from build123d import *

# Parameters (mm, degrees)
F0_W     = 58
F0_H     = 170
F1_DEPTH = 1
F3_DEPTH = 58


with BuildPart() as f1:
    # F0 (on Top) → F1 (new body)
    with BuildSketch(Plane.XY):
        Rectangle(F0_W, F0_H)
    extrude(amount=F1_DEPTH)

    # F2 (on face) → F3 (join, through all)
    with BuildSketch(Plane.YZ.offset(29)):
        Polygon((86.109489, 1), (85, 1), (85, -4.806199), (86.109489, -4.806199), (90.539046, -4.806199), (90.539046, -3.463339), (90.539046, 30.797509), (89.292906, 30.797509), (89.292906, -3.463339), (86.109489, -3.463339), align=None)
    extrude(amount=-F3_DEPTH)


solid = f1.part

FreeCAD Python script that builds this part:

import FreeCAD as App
import Part
import Sketcher

V = App.Vector


def add_polygon(sketch, points):
    """Adds a closed chain of lines whose ends are joined by coincident constraints."""
    first, n = sketch.GeometryCount, len(points)
    for a, b in zip(points, points[1:] + points[:1]):
        sketch.addGeometry(Part.LineSegment(App.Vector(*a, 0), App.Vector(*b, 0)), False)
    for i in range(n):
        sketch.addConstraint(Sketcher.Constraint("Coincident", first + i, 2, first + (i + 1) % n, 1))

doc = App.newDocument("Part")
params = doc.addObject("Spreadsheet::Sheet", "Params")
for row, (alias, value) in enumerate([
    ("sketch1_width", "58 mm"),
    ("sketch1_height", "170 mm"),
    ("pad1_length", "1 mm"),
    ("pad2_length", "58 mm"),
], start=1):
    params.set(f"A{row}", alias)
    params.set(f"B{row}", "=" + value)
    params.setAlias(f"B{row}", alias)

body = doc.addObject("PartDesign::Body", "Body")

# Sketch on XY plane
sketch1 = doc.addObject("Sketcher::SketchObject", "Sketch")
body.addObject(sketch1)
sketch1.AttachmentSupport = (doc.XY_Plane, [""])
sketch1.MapMode = "FlatFace"
add_polygon(sketch1, [(-29, 85), (-29, -85), (29, -85), (29, 85)])  # lines 0-3
sketch1.addConstraint(Sketcher.Constraint("Vertical", 0))
sketch1.addConstraint(Sketcher.Constraint("Horizontal", 1))
sketch1.addConstraint(Sketcher.Constraint("Vertical", 2))
sketch1.addConstraint(Sketcher.Constraint("Horizontal", 3))
sketch1.addConstraint(Sketcher.Constraint("Symmetric", 0, 2, 2, 2, -1, 1))
sketch1.addConstraint(Sketcher.Constraint("DistanceX", 1, 1, 1, 2, 58.0))
sketch1.addConstraint(Sketcher.Constraint("DistanceY", 0, 2, 0, 1, 170.0))
sketch1.setExpression("Constraints[9]", "Params.sketch1_width")
sketch1.setExpression("Constraints[10]", "Params.sketch1_height")
pad1 = doc.addObject("PartDesign::Pad", "Pad")
body.addObject(pad1)
pad1.Profile = sketch1
pad1.setExpression("Length", "Params.pad1_length")

# Sketch on YZ plane
sketch2 = doc.addObject("Sketcher::SketchObject", "Sketch001")
body.addObject(sketch2)
sketch2.AttachmentSupport = (doc.YZ_Plane, [""])
sketch2.MapMode = "FlatFace"
sketch2.AttachmentOffset = App.Placement(V(0, 0, 29), App.Rotation())
add_polygon(sketch2, [(86.1, 1), (85, 1), (85, -4.8), (90.5, -4.8), (90.5, 30.8), (89.3, 30.8), (89.3, -3.5), (86.1, -3.5)])  # lines 0-7
sketch2.addConstraint(Sketcher.Constraint("Horizontal", 0))
sketch2.addConstraint(Sketcher.Constraint("Vertical", 1))
sketch2.addConstraint(Sketcher.Constraint("Horizontal", 2))
sketch2.addConstraint(Sketcher.Constraint("Vertical", 3))
sketch2.addConstraint(Sketcher.Constraint("Horizontal", 4))
sketch2.addConstraint(Sketcher.Constraint("Vertical", 5))
sketch2.addConstraint(Sketcher.Constraint("Horizontal", 6))
sketch2.addConstraint(Sketcher.Constraint("Vertical", 7))
sketch2.addConstraint(Sketcher.Constraint("DistanceX", -1, 1, 0, 2, 85.0))
sketch2.addConstraint(Sketcher.Constraint("DistanceY", -1, 1, 0, 2, 1.0))
sketch2.addConstraint(Sketcher.Constraint("DistanceY", 1, 2, 1, 1, 5.806199))
sketch2.addConstraint(Sketcher.Constraint("DistanceX", 0, 2, 0, 1, 1.109489))
sketch2.addConstraint(Sketcher.Constraint("DistanceX", 4, 2, 4, 1, 1.24614))
sketch2.addConstraint(Sketcher.Constraint("DistanceY", 3, 1, 3, 2, 35.603708))
sketch2.addConstraint(Sketcher.Constraint("DistanceY", 5, 2, 5, 1, 34.260848))
sketch2.addConstraint(Sketcher.Constraint("DistanceX", 2, 1, 2, 2, 5.539046))
pad2 = doc.addObject("PartDesign::Pad", "Pad001")
body.addObject(pad2)
pad2.Profile = sketch2
pad2.setExpression("Length", "Params.pad2_length")
pad2.Reversed = True

doc.recompute()
